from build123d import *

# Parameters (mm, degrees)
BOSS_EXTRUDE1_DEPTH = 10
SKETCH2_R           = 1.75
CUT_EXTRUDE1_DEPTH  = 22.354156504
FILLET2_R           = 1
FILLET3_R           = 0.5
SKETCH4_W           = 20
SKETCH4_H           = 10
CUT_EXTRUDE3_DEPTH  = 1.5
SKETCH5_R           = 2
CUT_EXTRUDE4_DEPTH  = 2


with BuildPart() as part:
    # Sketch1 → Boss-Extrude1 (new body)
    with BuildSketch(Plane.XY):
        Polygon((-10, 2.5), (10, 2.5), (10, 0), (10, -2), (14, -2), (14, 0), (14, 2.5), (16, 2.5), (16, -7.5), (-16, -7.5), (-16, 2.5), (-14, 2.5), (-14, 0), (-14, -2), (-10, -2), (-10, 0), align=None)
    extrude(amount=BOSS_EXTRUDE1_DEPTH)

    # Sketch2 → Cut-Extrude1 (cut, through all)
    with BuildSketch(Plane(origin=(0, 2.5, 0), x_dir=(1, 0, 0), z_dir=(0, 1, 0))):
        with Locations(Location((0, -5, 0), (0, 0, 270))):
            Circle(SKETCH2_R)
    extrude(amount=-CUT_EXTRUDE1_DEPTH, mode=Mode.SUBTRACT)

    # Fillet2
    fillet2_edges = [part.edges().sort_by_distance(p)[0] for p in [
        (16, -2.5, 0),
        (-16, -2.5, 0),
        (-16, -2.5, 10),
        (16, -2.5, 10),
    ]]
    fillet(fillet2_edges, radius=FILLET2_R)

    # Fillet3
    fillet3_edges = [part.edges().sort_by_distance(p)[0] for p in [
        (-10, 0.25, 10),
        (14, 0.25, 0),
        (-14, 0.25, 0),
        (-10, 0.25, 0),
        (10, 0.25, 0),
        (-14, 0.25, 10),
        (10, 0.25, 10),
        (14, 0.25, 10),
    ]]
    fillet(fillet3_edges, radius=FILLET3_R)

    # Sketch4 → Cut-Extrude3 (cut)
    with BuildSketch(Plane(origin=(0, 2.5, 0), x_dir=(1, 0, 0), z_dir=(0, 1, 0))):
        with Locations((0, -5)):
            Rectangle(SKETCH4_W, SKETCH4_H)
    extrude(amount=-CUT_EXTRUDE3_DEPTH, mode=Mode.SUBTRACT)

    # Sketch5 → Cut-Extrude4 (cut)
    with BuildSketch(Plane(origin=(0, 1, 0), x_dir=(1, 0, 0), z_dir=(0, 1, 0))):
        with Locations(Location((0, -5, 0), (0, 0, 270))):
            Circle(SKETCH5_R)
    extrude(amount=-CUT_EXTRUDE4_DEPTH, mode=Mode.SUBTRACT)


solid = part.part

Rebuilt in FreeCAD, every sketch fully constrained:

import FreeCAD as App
import Part
import Sketcher


def edges_at(feature, points):
    """Names of the edges that pass closest to the given points."""
    edges = feature.Shape.Edges
    near = lambda p: min(range(len(edges)), key=lambda i: edges[i].distToShape(Part.Vertex(*p))[0])
    return sorted({f"Edge{near(p) + 1}" for p in points})


def add_polygon(sketch, points):
    """Adds a closed chain of lines whose ends are joined by coincident constraints."""
    first, n = sketch.GeometryCount, len(points)
    for a, b in zip(points, points[1:] + points[:1]):
        sketch.addGeometry(Part.LineSegment(App.Vector(*a, 0), App.Vector(*b, 0)), False)
    for i in range(n):
        sketch.addConstraint(Sketcher.Constraint("Coincident", first + i, 2, first + (i + 1) % n, 1))

doc = App.newDocument("Part")
body = doc.addObject("PartDesign::Body", "Body")

sketch1 = doc.addObject("Sketcher::SketchObject", "Sketch")
body.addObject(sketch1)
sketch1.AttachmentSupport = (doc.XY_Plane, [""])
sketch1.MapMode = "FlatFace"
add_polygon(sketch1, [(10, 2.5), (-10, 2.5), (-10, -2), (-14, -2), (-14, 2.5), (-16, 2.5), (-16, -7.5), (16, -7.5), (16, 2.5), (14, 2.5), (14, -2), (10, -2)])
sketch1.addConstraint([
    Sketcher.Constraint("Horizontal", 0),
    Sketcher.Constraint("Vertical", 1),
    Sketcher.Constraint("Horizontal", 2),
    Sketcher.Constraint("Vertical", 3),
    Sketcher.Constraint("Horizontal", 4),
    Sketcher.Constraint("Vertical", 5),
    Sketcher.Constraint("Horizontal", 6),
    Sketcher.Constraint("Vertical", 7),
    Sketcher.Constraint("Horizontal", 8),
    Sketcher.Constraint("Vertical", 9),
    Sketcher.Constraint("Horizontal", 10),
    Sketcher.Constraint("Vertical", 11),
    Sketcher.Constraint("Symmetric", 4, 2, 7, 2, -2),
    Sketcher.Constraint("Symmetric", 2, 2, 9, 2, -2),
    Sketcher.Constraint("Horizontal", 0, 2, 3, 2),
    Sketcher.Constraint("Equal", 2, 10),
    Sketcher.Constraint("DistanceX", 0, 2, 0, 1, 20.0),
    Sketcher.Constraint("DistanceX", 2, 2, 2, 1, 4.0),
    Sketcher.Constraint("DistanceX", 4, 2, 4, 1, 2.0),
    Sketcher.Constraint("DistanceY", 5, 2, 5, 1, 10.0),
    Sketcher.Constraint("DistanceY", 1, 2, 1, 1, 4.5),
    Sketcher.Constraint("DistanceY", 1, 2, -1, 1, 2.0),
])
pad1 = doc.addObject("PartDesign::Pad", "Pad")
body.addObject(pad1)
pad1.Profile = sketch1
pad1.Length = 10

sketch2 = doc.addObject("Sketcher::SketchObject", "Sketch001")
body.addObject(sketch2)
sketch2.AttachmentSupport = (doc.XZ_Plane, [""])
sketch2.MapMode = "FlatFace"
sketch2.AttachmentOffset = App.Placement(App.Vector(0, 0, -2.5), App.Rotation())
sketch2.addGeometry(Part.Circle(App.Vector(0, 5, 0), App.Vector(0, 0, 1), 1.8), False)
sketch2.addConstraint([
    Sketcher.Constraint("PointOnObject", 0, 3, -2),
    Sketcher.Constraint("Diameter", 0, 3.5),
    Sketcher.Constraint("DistanceY", -1, 1, 0, 3, 5.0),
])
pocket1 = doc.addObject("PartDesign::Pocket", "Pocket")
body.addObject(pocket1)
pocket1.Profile = sketch2
pocket1.Type = "ThroughAll"
pocket1.Reversed = True
doc.recompute()

fillet = doc.addObject("PartDesign::Fillet", "Fillet")
body.addObject(fillet)
fillet.Base = (pocket1, edges_at(pocket1, [
    (16, -2.5, 0),
    (-16, -2.5, 0),
    (-16, -2.5, 10),
    (16, -2.5, 10),
]))
fillet.Radius = 1
doc.recompute()

fillet2 = doc.addObject("PartDesign::Fillet", "Fillet001")
body.addObject(fillet2)
fillet2.Base = (fillet, edges_at(fillet, [
    (-10, 0.25, 10),
    (14, 0.25, 0),
    (-14, 0.25, 0),
    (-10, 0.25, 0),
    (10, 0.25, 0),
    (-14, 0.25, 10),
    (10, 0.25, 10),
    (14, 0.25, 10),
]))
fillet2.Radius = 0.5

sketch3 = doc.addObject("Sketcher::SketchObject", "Sketch002")
body.addObject(sketch3)
sketch3.AttachmentSupport = (doc.XZ_Plane, [""])
sketch3.MapMode = "FlatFace"
sketch3.AttachmentOffset = App.Placement(App.Vector(0, 0, -2.5), App.Rotation())
add_polygon(sketch3, [(-10, 0), (-10, 10), (10, 10), (10, 0)])
sketch3.addConstraint([
    Sketcher.Constraint("Vertical", 0),
    Sketcher.Constraint("Horizontal", 1),
    Sketcher.Constraint("Vertical", 2),
    Sketcher.Constraint("Horizontal", 3),
    Sketcher.Constraint("Symmetric", 2, 2, 3, 2, -1, 1),
    Sketcher.Constraint("DistanceX", 1, 1, 1, 2, 20.0),
    Sketcher.Constraint("DistanceY", 0, 1, 0, 2, 10.0),
])
pocket2 = doc.addObject("PartDesign::Pocket", "Pocket001")
body.addObject(pocket2)
pocket2.Profile = sketch3
pocket2.Length = 1.5
pocket2.Reversed = True

sketch4 = doc.addObject("Sketcher::SketchObject", "Sketch003")
body.addObject(sketch4)
sketch4.AttachmentSupport = (doc.XZ_Plane, [""])
sketch4.MapMode = "FlatFace"
sketch4.AttachmentOffset = App.Placement(App.Vector(0, 0, -1), App.Rotation())
sketch4.addGeometry(Part.Circle(App.Vector(0, 5, 0), App.Vector(0, 0, 1), 2), False)
sketch4.addConstraint([
    Sketcher.Constraint("PointOnObject", 0, 3, -2),
    Sketcher.Constraint("Diameter", 0, 4.0),
    Sketcher.Constraint("DistanceY", -1, 1, 0, 3, 5.0),
])
pocket3 = doc.addObject("PartDesign::Pocket", "Pocket002")
body.addObject(pocket3)
pocket3.Profile = sketch4
pocket3.Length = 2
pocket3.Reversed = True

doc.recompute()
